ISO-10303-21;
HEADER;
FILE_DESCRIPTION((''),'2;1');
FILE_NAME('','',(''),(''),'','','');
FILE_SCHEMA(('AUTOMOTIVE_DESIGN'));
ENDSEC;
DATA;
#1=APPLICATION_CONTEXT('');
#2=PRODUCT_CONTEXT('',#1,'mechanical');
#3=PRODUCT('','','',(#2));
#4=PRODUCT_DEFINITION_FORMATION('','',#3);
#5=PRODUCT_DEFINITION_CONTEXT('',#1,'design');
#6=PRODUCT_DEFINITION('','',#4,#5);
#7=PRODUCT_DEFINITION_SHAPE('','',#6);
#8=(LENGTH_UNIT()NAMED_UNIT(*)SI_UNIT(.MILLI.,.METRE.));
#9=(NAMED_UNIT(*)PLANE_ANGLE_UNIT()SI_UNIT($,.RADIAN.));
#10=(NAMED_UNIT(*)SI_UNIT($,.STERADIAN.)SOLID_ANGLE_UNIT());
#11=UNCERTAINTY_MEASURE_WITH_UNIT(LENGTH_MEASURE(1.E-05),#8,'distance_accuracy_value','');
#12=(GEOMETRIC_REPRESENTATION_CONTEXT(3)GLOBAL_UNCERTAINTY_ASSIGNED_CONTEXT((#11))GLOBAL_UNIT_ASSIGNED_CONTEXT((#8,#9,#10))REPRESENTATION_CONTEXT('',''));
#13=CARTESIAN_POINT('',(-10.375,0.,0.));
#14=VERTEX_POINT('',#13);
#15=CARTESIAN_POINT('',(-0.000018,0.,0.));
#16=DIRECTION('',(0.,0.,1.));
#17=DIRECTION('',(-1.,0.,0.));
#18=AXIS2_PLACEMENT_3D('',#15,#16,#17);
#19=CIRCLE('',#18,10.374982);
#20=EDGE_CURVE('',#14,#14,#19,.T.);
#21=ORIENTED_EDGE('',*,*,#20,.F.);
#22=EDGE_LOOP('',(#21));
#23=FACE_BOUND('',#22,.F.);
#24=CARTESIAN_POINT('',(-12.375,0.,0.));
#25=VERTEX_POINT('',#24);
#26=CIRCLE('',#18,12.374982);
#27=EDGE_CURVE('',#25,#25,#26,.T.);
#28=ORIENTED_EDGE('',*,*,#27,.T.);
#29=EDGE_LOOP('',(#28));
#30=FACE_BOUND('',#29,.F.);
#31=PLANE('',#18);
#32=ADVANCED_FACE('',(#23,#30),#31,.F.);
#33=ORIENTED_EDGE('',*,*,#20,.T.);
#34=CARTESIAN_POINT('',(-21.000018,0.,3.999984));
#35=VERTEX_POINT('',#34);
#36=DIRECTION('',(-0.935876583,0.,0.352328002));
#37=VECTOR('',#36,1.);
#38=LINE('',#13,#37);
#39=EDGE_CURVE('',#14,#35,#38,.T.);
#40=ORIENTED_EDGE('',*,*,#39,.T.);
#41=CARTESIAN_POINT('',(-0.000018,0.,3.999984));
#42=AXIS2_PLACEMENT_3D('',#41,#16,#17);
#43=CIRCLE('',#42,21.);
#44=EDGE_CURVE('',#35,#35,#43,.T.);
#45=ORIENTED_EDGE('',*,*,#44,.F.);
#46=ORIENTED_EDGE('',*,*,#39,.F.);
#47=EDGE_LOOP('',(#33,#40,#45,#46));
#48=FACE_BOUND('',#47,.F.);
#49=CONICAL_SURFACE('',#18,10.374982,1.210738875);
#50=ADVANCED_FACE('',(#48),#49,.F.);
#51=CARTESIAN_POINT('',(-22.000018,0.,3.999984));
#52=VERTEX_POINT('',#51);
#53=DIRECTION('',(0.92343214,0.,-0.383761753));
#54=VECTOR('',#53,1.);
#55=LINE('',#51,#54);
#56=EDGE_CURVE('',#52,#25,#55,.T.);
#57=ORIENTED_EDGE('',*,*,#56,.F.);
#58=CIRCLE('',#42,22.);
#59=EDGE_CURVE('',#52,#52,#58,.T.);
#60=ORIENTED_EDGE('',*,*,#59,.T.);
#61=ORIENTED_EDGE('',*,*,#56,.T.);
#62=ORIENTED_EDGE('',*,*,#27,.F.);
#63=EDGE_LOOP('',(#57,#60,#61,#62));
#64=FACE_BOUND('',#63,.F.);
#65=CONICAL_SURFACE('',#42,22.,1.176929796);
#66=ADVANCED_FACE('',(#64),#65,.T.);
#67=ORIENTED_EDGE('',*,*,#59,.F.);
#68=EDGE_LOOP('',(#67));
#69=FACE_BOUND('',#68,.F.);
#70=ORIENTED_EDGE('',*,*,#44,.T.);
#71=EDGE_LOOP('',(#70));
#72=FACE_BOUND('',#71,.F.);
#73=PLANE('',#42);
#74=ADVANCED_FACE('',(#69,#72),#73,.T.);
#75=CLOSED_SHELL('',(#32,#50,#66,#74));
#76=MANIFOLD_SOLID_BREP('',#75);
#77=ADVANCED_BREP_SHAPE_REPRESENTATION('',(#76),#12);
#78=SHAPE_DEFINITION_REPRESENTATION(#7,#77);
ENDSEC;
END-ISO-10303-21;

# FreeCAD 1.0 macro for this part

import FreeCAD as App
import Part
import Sketcher


def add_polygon(sketch, points):
    """Adds a closed chain of lines whose ends are joined by coincident constraints."""
    first, n = sketch.GeometryCount, len(points)
    for a, b in zip(points, points[1:] + points[:1]):
        sketch.addGeometry(Part.LineSegment(App.Vector(*a, 0), App.Vector(*b, 0)), False)
    for i in range(n):
        sketch.addConstraint(Sketcher.Constraint("Coincident", first + i, 2, first + (i + 1) % n, 1))

doc = App.newDocument("Part")
body = doc.addObject("PartDesign::Body", "Body")

# Sketch on XZ plane
sketch1 = body.newObject("Sketcher::SketchObject", "Sketch")
sketch1.AttachmentSupport = (doc.getObject("XZ_Plane"), [""])
sketch1.MapMode = "FlatFace"
add_polygon(sketch1, [(-10.4, 0), (-21, 4), (-22, 4), (-12.4, 0)])  # lines 0-3
sketch1.addGeometry(Part.LineSegment(App.Vector(0, 0, 0), App.Vector(0, 4, 0)), True)  # axis
sketch1.addConstraint(Sketcher.Constraint("Horizontal", 1))
sketch1.addConstraint(Sketcher.Constraint("Horizontal", 3))
sketch1.addConstraint(Sketcher.Constraint("Vertical", 4))
sketch1.addConstraint(Sketcher.Constraint("PointOnObject", 2, 2, -1))
sketch1.addConstraint(Sketcher.Constraint("PointOnObject", 4, 1, -1))
sketch1.addConstraint(Sketcher.Constraint("Horizontal", 1, 2, 4, 2))
sketch1.addConstraint(Sketcher.Constraint("DistanceX", 1, 2, 1, 1, 1.0))
sketch1.addConstraint(Sketcher.Constraint("DistanceX", 3, 1, 3, 2, 2.0))
sketch1.addConstraint(Sketcher.Constraint("DistanceX", 0, 2, 4, 1, 21.0))
sketch1.addConstraint(Sketcher.Constraint("DistanceX", 2, 2, -1, 1, 12.375))
sketch1.addConstraint(Sketcher.Constraint("Distance", 0, 11.353012))
sketch1.addConstraint(Sketcher.Constraint("Distance", 2, 10.423092))
revolution = body.newObject("PartDesign::Revolution", "Revolution")
revolution.Profile = sketch1
revolution.ReferenceAxis = (sketch1, ["Axis0"])
revolution.Angle = 360

doc.recompute()
